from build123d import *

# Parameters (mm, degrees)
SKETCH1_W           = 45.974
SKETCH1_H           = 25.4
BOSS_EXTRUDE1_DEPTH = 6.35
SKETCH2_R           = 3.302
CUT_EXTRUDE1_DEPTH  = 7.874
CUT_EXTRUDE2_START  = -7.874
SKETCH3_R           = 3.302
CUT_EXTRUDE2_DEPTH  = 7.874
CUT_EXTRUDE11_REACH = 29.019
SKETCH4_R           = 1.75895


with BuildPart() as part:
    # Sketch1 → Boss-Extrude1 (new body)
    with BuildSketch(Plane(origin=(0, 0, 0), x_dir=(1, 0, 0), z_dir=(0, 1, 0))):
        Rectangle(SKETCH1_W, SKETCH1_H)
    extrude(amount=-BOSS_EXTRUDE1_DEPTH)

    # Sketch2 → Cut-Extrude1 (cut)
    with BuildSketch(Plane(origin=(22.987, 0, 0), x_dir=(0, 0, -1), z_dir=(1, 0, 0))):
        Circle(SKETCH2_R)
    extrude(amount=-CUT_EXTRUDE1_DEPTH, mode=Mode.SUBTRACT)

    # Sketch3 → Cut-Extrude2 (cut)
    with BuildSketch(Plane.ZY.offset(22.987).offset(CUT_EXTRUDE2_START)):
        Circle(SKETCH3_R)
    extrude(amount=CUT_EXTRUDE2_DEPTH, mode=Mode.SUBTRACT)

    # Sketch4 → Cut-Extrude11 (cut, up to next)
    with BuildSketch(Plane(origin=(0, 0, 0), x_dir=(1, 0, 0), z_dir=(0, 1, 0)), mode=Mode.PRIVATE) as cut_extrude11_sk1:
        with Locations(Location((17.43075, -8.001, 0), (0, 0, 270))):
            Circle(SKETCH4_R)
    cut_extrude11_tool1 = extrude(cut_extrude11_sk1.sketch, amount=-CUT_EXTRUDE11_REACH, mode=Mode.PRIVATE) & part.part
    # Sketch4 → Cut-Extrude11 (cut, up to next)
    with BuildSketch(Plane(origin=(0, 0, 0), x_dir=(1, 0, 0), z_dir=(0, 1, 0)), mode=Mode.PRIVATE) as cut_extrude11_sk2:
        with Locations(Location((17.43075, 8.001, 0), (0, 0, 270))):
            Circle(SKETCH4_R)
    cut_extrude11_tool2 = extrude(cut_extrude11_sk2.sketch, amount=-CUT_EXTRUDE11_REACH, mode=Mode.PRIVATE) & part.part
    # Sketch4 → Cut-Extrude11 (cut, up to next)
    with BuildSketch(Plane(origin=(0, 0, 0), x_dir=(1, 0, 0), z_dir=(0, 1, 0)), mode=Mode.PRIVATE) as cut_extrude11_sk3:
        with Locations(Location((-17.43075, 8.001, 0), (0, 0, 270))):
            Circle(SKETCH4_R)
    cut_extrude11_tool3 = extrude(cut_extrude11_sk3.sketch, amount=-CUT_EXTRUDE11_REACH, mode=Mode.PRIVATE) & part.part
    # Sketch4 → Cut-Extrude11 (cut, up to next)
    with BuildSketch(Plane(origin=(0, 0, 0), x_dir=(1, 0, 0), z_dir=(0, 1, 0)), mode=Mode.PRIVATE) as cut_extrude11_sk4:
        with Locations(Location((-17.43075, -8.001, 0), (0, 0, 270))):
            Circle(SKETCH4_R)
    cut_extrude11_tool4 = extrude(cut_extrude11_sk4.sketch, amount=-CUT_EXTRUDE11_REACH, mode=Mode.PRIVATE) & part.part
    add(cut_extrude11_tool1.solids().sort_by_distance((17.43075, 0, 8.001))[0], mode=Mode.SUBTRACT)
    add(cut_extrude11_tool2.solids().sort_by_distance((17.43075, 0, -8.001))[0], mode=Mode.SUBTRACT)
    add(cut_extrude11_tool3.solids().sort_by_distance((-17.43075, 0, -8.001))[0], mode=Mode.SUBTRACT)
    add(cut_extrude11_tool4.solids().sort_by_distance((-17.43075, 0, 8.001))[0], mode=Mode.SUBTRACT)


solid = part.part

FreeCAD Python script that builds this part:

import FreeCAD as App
import Part
import Sketcher

V = App.Vector
Q = App.Units.Quantity


def add_polygon(sketch, points):
    """Adds a closed chain of lines whose ends are joined by coincident constraints."""
    first, n = sketch.GeometryCount, len(points)
    for a, b in zip(points, points[1:] + points[:1]):
        sketch.addGeometry(Part.LineSegment(App.Vector(*a, 0), App.Vector(*b, 0)), False)
    for i in range(n):
        sketch.addConstraint(Sketcher.Constraint("Coincident", first + i, 2, first + (i + 1) % n, 1))

doc = App.newDocument("Part")
params = doc.addObject("Spreadsheet::Sheet", "Params")
for row, (alias, value) in enumerate([
    ("sketch1_height", "1 in"),
    ("sketch1_width", "1.81 in"),
    ("pad1_length", "0.25 in"),
    ("sketch2_diameter", "0.26 in"),
    ("pocket1_length", "0.31 in"),
    ("sketch3_diameter", "0.26 in"),
    ("pocket2_length", "0.31 in"),
], start=1):
    params.set(f"A{row}", alias)
    params.set(f"B{row}", "=" + value)
    params.setAlias(f"B{row}", alias)

body = doc.addObject("PartDesign::Body", "Body")

# Sketch on XZ plane
sketch1 = body.newObject("Sketcher::SketchObject", "Sketch")
sketch1.AttachmentSupport = (doc.getObject("XZ_Plane"), [""])
sketch1.MapMode = "FlatFace"
add_polygon(sketch1, [(-23, -13), (-23, 13), (23, 13), (23, -13)])  # lines 0-3
sketch1.addConstraint([
    Sketcher.Constraint("Vertical", 0),
    Sketcher.Constraint("Horizontal", 1),
    Sketcher.Constraint("Vertical", 2),
    Sketcher.Constraint("Horizontal", 3),
    Sketcher.Constraint("Symmetric", 0, 2, 2, 2, -1, 1),
    Sketcher.Constraint("DistanceY", 0, 1, 0, 2, Q("1 in")),
    Sketcher.Constraint("DistanceX", 1, 1, 1, 2, Q("1.81 in")),
])
sketch1.setExpression("Constraints[9]", "Params.sketch1_height")
sketch1.setExpression("Constraints[10]", "Params.sketch1_width")
pad1 = body.newObject("PartDesign::Pad", "Pad")
pad1.Profile = sketch1
pad1.setExpression("Length", "Params.pad1_length")

# Sketch on YZ plane
sketch2 = body.newObject("Sketcher::SketchObject", "Sketch001")
sketch2.AttachmentSupport = (doc.getObject("YZ_Plane"), [""])
sketch2.MapMode = "FlatFace"
sketch2.AttachmentOffset = App.Placement(V(0, 0, 0.905 * 25.4), App.Rotation())
sketch2.addGeometry(Part.Circle(V(0, 0, 0), V(0, 0, 1), 3.3), False)
sketch2.addConstraint([
    Sketcher.Constraint("Coincident", 0, 3, -1, 1),
    Sketcher.Constraint("Diameter", 0, Q("0.26 in")),
])
sketch2.setExpression("Constraints[1]", "Params.sketch2_diameter")
pocket1 = body.newObject("PartDesign::Pocket", "Pocket")
pocket1.Profile = sketch2
pocket1.setExpression("Length", "Params.pocket1_length")

# Sketch on YZ plane
sketch3 = body.newObject("Sketcher::SketchObject", "Sketch002")
sketch3.AttachmentSupport = (doc.getObject("YZ_Plane"), [""])
sketch3.MapMode = "FlatFace"
sketch3.AttachmentOffset = App.Placement(V(0, 0, -0.595 * 25.4), App.Rotation())
sketch3.addGeometry(Part.Circle(V(0, 0, 0), V(0, 0, 1), 3.3), False)
sketch3.addConstraint([
    Sketcher.Constraint("Coincident", 0, 3, -1, 1),
    Sketcher.Constraint("Diameter", 0, Q("0.26 in")),
])
sketch3.setExpression("Constraints[1]", "Params.sketch3_diameter")
pocket2 = body.newObject("PartDesign::Pocket", "Pocket001")
pocket2.Profile = sketch3
pocket2.setExpression("Length", "Params.pocket2_length")

# Sketch on XZ plane
sketch4 = body.newObject("Sketcher::SketchObject", "Sketch003")
sketch4.AttachmentSupport = (doc.getObject("XZ_Plane"), [""])
sketch4.MapMode = "FlatFace"
sketch4.addGeometry(Part.Circle(V(17.4, 8, 0), V(0, 0, 1), 1.8), False)
sketch4.addConstraint([
    Sketcher.Constraint("Diameter", 0, Q("0.1385 in")),
    Sketcher.Constraint("DistanceY", -1, 1, 0, 3, Q("0.315 in")),
    Sketcher.Constraint("DistanceX", -1, 1, 0, 3, 17.43075),
])
pocket3 = body.newObject("PartDesign::Pocket", "Pocket002")
pocket3.Profile = sketch4
pocket3.Type = "UpToFirst"
pocket3.Reversed = True

# Sketch on XZ plane
sketch5 = body.newObject("Sketcher::SketchObject", "Sketch004")
sketch5.AttachmentSupport = (doc.getObject("XZ_Plane"), [""])
sketch5.MapMode = "FlatFace"
sketch5.addGeometry(Part.Circle(V(17.4, -8, 0), V(0, 0, 1), 1.8), False)
sketch5.addConstraint([
    Sketcher.Constraint("Diameter", 0, Q("0.1385 in")),
    Sketcher.Constraint("DistanceY", 0, 3, -1, 1, Q("0.315 in")),
    Sketcher.Constraint("DistanceX", -1, 1, 0, 3, 17.43075),
])
pocket4 = body.newObject("PartDesign::Pocket", "Pocket003")
pocket4.Profile = sketch5
pocket4.Type = "UpToFirst"
pocket4.Reversed = True

# Sketch on XZ plane
sketch6 = body.newObject("Sketcher::SketchObject", "Sketch005")
sketch6.AttachmentSupport = (doc.getObject("XZ_Plane"), [""])
sketch6.MapMode = "FlatFace"
sketch6.addGeometry(Part.Circle(V(-17.4, -8, 0), V(0, 0, 1), 1.8), False)
sketch6.addConstraint([
    Sketcher.Constraint("Diameter", 0, Q("0.1385 in")),
    Sketcher.Constraint("DistanceY", 0, 3, -1, 1, Q("0.315 in")),
    Sketcher.Constraint("DistanceX", 0, 3, -1, 1, 17.43075),
])
pocket5 = body.newObject("PartDesign::Pocket", "Pocket004")
pocket5.Profile = sketch6
pocket5.Type = "UpToFirst"
pocket5.Reversed = True

# Sketch on XZ plane
sketch7 = body.newObject("Sketcher::SketchObject", "Sketch006")
sketch7.AttachmentSupport = (doc.getObject("XZ_Plane"), [""])
sketch7.MapMode = "FlatFace"
sketch7.addGeometry(Part.Circle(V(-17.4, 8, 0), V(0, 0, 1), 1.8), False)
sketch7.addConstraint([
    Sketcher.Constraint("Diameter", 0, Q("0.1385 in")),
    Sketcher.Constraint("DistanceY", -1, 1, 0, 3, Q("0.315 in")),
    Sketcher.Constraint("DistanceX", 0, 3, -1, 1, 17.43075),
])
pocket6 = body.newObject("PartDesign::Pocket", "Pocket005")
pocket6.Profile = sketch7
pocket6.Type = "UpToFirst"
pocket6.Reversed = True

doc.recompute()
